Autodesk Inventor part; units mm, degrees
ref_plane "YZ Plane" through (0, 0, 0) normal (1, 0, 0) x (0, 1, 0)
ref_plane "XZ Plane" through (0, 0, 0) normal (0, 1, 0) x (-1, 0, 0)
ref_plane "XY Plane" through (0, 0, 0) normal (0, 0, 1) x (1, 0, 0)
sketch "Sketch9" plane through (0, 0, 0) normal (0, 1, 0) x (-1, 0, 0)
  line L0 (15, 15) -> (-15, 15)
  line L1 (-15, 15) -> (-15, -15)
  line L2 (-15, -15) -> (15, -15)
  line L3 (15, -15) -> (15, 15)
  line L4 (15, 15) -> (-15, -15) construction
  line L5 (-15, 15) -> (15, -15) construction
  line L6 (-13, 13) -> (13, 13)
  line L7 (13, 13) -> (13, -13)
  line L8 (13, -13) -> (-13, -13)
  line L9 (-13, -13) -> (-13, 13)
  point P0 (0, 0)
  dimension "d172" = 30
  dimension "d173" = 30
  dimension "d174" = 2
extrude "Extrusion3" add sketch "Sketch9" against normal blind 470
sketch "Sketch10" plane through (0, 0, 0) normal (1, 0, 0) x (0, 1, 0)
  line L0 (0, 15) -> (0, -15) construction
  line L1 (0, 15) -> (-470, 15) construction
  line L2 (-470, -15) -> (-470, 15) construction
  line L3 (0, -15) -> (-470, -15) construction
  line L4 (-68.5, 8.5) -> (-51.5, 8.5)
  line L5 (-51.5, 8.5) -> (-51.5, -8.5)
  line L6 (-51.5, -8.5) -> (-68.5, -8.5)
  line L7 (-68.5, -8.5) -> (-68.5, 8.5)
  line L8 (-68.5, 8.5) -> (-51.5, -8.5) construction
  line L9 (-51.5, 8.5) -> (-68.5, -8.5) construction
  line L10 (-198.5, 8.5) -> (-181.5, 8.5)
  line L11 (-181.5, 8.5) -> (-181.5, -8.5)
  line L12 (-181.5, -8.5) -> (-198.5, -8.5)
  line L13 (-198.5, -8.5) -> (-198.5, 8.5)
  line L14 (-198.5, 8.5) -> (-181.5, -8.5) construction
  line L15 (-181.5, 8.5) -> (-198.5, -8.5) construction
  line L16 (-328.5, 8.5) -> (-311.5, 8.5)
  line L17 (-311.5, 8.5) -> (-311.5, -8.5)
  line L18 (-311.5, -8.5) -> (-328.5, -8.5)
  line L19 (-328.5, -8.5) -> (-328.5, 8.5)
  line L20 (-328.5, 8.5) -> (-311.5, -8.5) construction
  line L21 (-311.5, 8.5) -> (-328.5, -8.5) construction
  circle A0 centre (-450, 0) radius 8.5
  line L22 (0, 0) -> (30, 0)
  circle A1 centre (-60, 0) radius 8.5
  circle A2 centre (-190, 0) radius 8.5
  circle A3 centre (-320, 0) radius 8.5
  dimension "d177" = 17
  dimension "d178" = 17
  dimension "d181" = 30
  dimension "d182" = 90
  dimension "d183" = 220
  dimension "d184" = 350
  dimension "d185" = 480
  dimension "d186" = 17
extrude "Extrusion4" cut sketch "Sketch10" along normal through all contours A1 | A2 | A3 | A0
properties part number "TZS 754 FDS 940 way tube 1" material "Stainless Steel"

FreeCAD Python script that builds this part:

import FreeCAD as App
import Part
import Sketcher
Q = App.Units.Quantity


def add_polygon(sketch, points):
    """Adds a closed chain of lines whose ends are joined by coincident constraints."""
    first, n = sketch.GeometryCount, len(points)
    for a, b in zip(points, points[1:] + points[:1]):
        sketch.addGeometry(Part.LineSegment(App.Vector(*a, 0), App.Vector(*b, 0)), False)
    for i in range(n):
        sketch.addConstraint(Sketcher.Constraint("Coincident", first + i, 2, first + (i + 1) % n, 1))

doc = App.newDocument("Part")
body = doc.addObject("PartDesign::Body", "Body")

sketch1 = body.newObject("Sketcher::SketchObject", "Sketch")
sketch1.AttachmentSupport = (doc.getObject("XZ_Plane"), [""])
sketch1.MapMode = "FlatFace"
add_polygon(sketch1, [(-15, -15), (-15, 15), (15, 15), (15, -15)])
add_polygon(sketch1, [(13, -13), (13, 13), (-13, 13), (-13, -13)])
sketch1.addConstraint(Sketcher.Constraint("Vertical", 0))
sketch1.addConstraint(Sketcher.Constraint("Horizontal", 1))
sketch1.addConstraint(Sketcher.Constraint("Vertical", 2))
sketch1.addConstraint(Sketcher.Constraint("Horizontal", 3))
sketch1.addConstraint(Sketcher.Constraint("Vertical", 4))
sketch1.addConstraint(Sketcher.Constraint("Horizontal", 5))
sketch1.addConstraint(Sketcher.Constraint("Vertical", 6))
sketch1.addConstraint(Sketcher.Constraint("Horizontal", 7))
sketch1.addConstraint(Sketcher.Constraint("Symmetric", 0, 2, 2, 2, -1, 1))
sketch1.addConstraint(Sketcher.Constraint("Symmetric", 4, 2, 6, 2, -1, 1))
sketch1.addConstraint(Sketcher.Constraint("Equal", 3, 0))
sketch1.addConstraint(Sketcher.Constraint("Equal", 7, 4))
sketch1.addConstraint(Sketcher.Constraint("DistanceX", 1, 1, 1, 2, Q("30 mm")))
sketch1.addConstraint(Sketcher.Constraint("DistanceX", 4, 2, 1, 2, Q("2 mm")))
pad1 = body.newObject("PartDesign::Pad", "Pad")
pad1.Profile = sketch1
pad1.Length = 470

sketch2 = body.newObject("Sketcher::SketchObject", "Sketch001")
sketch2.AttachmentSupport = (doc.getObject("YZ_Plane"), [""])
sketch2.MapMode = "FlatFace"
sketch2.addGeometry(Part.Circle(App.Vector(-60, 0, 0), App.Vector(0, 0, 1), 8), False)
sketch2.addGeometry(Part.Circle(App.Vector(-190, 0, 0), App.Vector(0, 0, 1), 8), False)
sketch2.addGeometry(Part.Circle(App.Vector(-320, 0, 0), App.Vector(0, 0, 1), 8), False)
sketch2.addGeometry(Part.Circle(App.Vector(-450, 0, 0), App.Vector(0, 0, 1), 8), False)
sketch2.addConstraint(Sketcher.Constraint("Equal", 0, 1))
sketch2.addConstraint(Sketcher.Constraint("Equal", 1, 2))
sketch2.addConstraint(Sketcher.Constraint("Equal", 2, 3))
sketch2.addConstraint(Sketcher.Constraint("PointOnObject", 0, 3, -1))
sketch2.addConstraint(Sketcher.Constraint("PointOnObject", 1, 3, -1))
sketch2.addConstraint(Sketcher.Constraint("PointOnObject", 2, 3, -1))
sketch2.addConstraint(Sketcher.Constraint("PointOnObject", 3, 3, -1))
sketch2.addConstraint(Sketcher.Constraint("Diameter", 0, Q("17 mm")))
sketch2.addConstraint(Sketcher.Constraint("DistanceX", 0, 3, -1, 1, Q("60 mm")))
sketch2.addConstraint(Sketcher.Constraint("DistanceX", 1, 3, -1, 1, Q("190 mm")))
sketch2.addConstraint(Sketcher.Constraint("DistanceX", 2, 3, -1, 1, Q("320 mm")))
sketch2.addConstraint(Sketcher.Constraint("DistanceX", 3, 3, -1, 1, Q("450 mm")))
pocket1 = body.newObject("PartDesign::Pocket", "Pocket")
pocket1.Profile = sketch2
pocket1.Type = "ThroughAll"
pocket1.Reversed = True

doc.recompute()
